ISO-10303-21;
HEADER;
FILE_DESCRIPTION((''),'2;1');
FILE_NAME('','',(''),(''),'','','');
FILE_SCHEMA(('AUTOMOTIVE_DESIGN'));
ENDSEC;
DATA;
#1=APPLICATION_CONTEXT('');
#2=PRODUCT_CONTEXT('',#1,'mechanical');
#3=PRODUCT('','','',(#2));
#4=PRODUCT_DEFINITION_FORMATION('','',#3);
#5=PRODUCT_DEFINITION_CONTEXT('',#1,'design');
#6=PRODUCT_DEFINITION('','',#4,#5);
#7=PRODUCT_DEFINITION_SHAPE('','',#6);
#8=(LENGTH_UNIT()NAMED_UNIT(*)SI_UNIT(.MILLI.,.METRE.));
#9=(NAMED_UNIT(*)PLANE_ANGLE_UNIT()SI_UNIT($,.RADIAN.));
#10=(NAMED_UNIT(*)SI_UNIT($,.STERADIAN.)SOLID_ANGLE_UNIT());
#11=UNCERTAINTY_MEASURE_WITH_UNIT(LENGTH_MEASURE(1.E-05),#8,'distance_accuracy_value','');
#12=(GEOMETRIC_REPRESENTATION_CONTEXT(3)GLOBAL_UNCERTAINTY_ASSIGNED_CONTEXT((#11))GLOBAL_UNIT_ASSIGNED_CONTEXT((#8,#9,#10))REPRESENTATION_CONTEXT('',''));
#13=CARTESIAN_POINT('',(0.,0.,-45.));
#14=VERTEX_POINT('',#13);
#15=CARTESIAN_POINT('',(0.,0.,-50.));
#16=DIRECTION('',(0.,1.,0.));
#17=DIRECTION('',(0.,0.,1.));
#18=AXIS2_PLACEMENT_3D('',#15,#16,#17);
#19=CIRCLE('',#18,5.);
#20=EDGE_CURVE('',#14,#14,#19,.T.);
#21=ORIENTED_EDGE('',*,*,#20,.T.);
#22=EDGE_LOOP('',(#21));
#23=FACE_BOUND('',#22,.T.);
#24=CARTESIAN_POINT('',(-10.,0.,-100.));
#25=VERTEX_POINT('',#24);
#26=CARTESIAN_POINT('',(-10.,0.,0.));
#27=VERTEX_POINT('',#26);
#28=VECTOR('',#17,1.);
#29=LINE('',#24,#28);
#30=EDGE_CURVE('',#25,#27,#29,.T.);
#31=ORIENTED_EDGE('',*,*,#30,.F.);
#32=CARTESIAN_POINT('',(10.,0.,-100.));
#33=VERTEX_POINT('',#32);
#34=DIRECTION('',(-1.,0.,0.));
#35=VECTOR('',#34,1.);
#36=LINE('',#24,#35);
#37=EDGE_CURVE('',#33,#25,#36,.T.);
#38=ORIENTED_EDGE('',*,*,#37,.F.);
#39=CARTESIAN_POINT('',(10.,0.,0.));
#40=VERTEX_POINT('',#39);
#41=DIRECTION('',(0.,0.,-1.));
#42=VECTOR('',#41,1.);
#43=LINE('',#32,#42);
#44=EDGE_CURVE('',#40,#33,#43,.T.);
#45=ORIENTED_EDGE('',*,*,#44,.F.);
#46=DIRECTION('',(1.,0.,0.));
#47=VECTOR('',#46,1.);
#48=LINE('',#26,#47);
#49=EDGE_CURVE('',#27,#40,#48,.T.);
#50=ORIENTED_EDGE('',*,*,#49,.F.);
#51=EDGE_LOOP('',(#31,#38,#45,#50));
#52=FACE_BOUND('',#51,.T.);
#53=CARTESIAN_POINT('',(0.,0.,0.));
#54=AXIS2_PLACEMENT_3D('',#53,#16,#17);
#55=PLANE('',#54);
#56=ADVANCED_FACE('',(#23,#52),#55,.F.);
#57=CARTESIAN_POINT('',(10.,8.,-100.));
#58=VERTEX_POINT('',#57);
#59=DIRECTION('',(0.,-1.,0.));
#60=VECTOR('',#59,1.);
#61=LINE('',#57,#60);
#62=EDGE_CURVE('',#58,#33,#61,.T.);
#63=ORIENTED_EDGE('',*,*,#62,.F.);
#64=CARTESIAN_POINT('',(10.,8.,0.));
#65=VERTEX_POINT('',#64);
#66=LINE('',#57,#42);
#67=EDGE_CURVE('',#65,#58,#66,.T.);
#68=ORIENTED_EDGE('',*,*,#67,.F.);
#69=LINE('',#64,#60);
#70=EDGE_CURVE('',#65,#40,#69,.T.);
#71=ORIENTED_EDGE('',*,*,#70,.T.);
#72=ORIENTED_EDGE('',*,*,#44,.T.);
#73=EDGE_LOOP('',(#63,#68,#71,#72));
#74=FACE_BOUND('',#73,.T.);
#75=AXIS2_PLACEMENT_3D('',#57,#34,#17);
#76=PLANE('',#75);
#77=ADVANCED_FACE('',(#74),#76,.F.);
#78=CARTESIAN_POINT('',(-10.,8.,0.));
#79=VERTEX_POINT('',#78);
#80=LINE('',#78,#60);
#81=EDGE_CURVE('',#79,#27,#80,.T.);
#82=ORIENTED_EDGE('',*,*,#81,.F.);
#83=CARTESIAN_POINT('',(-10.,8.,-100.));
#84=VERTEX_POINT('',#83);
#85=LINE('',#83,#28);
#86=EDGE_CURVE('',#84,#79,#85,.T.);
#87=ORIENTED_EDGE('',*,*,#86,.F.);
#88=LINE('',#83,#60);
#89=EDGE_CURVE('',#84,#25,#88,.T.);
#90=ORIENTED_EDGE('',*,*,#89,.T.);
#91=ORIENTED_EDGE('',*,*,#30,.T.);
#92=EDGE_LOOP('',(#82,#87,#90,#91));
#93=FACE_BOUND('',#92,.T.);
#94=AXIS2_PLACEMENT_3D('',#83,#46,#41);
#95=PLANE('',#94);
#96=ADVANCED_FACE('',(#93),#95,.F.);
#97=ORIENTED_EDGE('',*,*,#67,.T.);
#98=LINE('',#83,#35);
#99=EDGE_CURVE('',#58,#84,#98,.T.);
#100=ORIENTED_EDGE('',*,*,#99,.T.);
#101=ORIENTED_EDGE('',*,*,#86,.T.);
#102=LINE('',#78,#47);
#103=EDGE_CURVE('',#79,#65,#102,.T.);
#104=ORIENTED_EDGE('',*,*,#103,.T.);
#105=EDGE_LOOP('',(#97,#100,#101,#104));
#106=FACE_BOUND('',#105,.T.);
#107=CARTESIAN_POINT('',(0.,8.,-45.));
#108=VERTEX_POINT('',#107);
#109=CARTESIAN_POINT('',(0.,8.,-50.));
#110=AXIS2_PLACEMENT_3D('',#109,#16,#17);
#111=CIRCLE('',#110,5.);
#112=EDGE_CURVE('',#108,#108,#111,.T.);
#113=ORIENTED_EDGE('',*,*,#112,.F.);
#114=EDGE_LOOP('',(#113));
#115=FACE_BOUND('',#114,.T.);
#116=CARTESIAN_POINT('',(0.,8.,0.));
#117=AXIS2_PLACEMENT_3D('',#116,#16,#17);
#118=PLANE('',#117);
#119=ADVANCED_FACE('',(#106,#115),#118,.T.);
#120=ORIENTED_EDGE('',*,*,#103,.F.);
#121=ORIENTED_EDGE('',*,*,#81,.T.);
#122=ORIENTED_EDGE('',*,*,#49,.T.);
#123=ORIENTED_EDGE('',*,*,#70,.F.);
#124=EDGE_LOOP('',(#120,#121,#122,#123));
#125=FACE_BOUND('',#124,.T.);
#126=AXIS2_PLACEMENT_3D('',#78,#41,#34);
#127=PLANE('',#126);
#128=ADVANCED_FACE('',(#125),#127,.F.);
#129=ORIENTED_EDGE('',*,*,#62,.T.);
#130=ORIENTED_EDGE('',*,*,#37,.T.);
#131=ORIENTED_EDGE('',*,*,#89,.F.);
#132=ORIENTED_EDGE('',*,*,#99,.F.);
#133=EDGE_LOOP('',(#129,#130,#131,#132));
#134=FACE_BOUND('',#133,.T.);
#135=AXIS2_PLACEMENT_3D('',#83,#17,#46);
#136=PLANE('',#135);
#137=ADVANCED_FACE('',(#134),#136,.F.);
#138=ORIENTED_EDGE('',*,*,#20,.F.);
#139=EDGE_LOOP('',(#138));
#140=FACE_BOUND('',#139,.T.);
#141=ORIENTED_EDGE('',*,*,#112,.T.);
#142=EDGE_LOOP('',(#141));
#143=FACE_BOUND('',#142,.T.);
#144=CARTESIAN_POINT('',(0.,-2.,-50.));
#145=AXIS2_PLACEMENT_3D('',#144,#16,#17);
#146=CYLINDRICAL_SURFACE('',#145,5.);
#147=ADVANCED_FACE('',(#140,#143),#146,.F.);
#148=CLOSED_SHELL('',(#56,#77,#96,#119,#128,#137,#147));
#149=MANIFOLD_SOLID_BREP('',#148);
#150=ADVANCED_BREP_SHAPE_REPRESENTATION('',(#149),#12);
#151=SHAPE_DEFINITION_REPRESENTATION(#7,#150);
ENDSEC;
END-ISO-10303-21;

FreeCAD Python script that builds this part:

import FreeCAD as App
import Part
import Sketcher
from FreeCAD import Vector
Q = App.Units.Quantity

doc = App.newDocument("Part")
body = doc.addObject("PartDesign::Body", "Body")

# Sketch on XZ plane
sketch1 = body.newObject("Sketcher::SketchObject", "Sketch")
sketch1.AttachmentSupport = (doc.getObject("XZ_Plane"), [""])
sketch1.MapMode = "FlatFace"
sketch1.addGeometry(Part.LineSegment(Vector(-10, -100, 0), Vector(-10, 0, 0)), False)
sketch1.addGeometry(Part.LineSegment(Vector(-10, 0, 0), Vector(10, 0, 0)), False)
sketch1.addGeometry(Part.LineSegment(Vector(10, 0, 0), Vector(10, -100, 0)), False)
sketch1.addGeometry(Part.LineSegment(Vector(10, -100, 0), Vector(-10, -100, 0)), False)
sketch1.addConstraint(Sketcher.Constraint("Coincident", 0, 2, 1, 1))
sketch1.addConstraint(Sketcher.Constraint("Coincident", 1, 2, 2, 1))
sketch1.addConstraint(Sketcher.Constraint("Coincident", 2, 2, 3, 1))
sketch1.addConstraint(Sketcher.Constraint("Coincident", 3, 2, 0, 1))
sketch1.addConstraint(Sketcher.Constraint("Vertical", 0))
sketch1.addConstraint(Sketcher.Constraint("Horizontal", 1))
sketch1.addConstraint(Sketcher.Constraint("Vertical", 2))
sketch1.addConstraint(Sketcher.Constraint("Horizontal", 3))
sketch1.addConstraint(Sketcher.Constraint("Symmetric", 0, 2, 1, 2, -1, 1))
sketch1.addConstraint(Sketcher.Constraint("DistanceX", 1, 1, 1, 2, Q("20 mm")))
sketch1.addConstraint(Sketcher.Constraint("DistanceY", 0, 1, 0, 2, Q("100 mm")))
pad1 = body.newObject("PartDesign::Pad", "Pad")
pad1.Profile = sketch1
pad1.Length = 8
pad1.Reversed = True

# Sketch on XZ plane
sketch2 = body.newObject("Sketcher::SketchObject", "Sketch001")
sketch2.AttachmentSupport = (doc.getObject("XZ_Plane"), [""])
sketch2.MapMode = "FlatFace"
sketch2.AttachmentOffset = App.Placement(Vector(0, 0, -8), App.Rotation())
sketch2.addGeometry(Part.Circle(Vector(0, -50, 0), Vector(0, 0, 1), 5), False)
sketch2.addConstraint(Sketcher.Constraint("PointOnObject", 0, 3, -2))
sketch2.addConstraint(Sketcher.Constraint("Diameter", 0, Q("10 mm")))
sketch2.addConstraint(Sketcher.Constraint("DistanceY", 0, 3, -1, 1, Q("50 mm")))
pocket1 = body.newObject("PartDesign::Pocket", "Pocket")
pocket1.Profile = sketch2
pocket1.Length = 10
pocket1.Reversed = True

doc.recompute()
